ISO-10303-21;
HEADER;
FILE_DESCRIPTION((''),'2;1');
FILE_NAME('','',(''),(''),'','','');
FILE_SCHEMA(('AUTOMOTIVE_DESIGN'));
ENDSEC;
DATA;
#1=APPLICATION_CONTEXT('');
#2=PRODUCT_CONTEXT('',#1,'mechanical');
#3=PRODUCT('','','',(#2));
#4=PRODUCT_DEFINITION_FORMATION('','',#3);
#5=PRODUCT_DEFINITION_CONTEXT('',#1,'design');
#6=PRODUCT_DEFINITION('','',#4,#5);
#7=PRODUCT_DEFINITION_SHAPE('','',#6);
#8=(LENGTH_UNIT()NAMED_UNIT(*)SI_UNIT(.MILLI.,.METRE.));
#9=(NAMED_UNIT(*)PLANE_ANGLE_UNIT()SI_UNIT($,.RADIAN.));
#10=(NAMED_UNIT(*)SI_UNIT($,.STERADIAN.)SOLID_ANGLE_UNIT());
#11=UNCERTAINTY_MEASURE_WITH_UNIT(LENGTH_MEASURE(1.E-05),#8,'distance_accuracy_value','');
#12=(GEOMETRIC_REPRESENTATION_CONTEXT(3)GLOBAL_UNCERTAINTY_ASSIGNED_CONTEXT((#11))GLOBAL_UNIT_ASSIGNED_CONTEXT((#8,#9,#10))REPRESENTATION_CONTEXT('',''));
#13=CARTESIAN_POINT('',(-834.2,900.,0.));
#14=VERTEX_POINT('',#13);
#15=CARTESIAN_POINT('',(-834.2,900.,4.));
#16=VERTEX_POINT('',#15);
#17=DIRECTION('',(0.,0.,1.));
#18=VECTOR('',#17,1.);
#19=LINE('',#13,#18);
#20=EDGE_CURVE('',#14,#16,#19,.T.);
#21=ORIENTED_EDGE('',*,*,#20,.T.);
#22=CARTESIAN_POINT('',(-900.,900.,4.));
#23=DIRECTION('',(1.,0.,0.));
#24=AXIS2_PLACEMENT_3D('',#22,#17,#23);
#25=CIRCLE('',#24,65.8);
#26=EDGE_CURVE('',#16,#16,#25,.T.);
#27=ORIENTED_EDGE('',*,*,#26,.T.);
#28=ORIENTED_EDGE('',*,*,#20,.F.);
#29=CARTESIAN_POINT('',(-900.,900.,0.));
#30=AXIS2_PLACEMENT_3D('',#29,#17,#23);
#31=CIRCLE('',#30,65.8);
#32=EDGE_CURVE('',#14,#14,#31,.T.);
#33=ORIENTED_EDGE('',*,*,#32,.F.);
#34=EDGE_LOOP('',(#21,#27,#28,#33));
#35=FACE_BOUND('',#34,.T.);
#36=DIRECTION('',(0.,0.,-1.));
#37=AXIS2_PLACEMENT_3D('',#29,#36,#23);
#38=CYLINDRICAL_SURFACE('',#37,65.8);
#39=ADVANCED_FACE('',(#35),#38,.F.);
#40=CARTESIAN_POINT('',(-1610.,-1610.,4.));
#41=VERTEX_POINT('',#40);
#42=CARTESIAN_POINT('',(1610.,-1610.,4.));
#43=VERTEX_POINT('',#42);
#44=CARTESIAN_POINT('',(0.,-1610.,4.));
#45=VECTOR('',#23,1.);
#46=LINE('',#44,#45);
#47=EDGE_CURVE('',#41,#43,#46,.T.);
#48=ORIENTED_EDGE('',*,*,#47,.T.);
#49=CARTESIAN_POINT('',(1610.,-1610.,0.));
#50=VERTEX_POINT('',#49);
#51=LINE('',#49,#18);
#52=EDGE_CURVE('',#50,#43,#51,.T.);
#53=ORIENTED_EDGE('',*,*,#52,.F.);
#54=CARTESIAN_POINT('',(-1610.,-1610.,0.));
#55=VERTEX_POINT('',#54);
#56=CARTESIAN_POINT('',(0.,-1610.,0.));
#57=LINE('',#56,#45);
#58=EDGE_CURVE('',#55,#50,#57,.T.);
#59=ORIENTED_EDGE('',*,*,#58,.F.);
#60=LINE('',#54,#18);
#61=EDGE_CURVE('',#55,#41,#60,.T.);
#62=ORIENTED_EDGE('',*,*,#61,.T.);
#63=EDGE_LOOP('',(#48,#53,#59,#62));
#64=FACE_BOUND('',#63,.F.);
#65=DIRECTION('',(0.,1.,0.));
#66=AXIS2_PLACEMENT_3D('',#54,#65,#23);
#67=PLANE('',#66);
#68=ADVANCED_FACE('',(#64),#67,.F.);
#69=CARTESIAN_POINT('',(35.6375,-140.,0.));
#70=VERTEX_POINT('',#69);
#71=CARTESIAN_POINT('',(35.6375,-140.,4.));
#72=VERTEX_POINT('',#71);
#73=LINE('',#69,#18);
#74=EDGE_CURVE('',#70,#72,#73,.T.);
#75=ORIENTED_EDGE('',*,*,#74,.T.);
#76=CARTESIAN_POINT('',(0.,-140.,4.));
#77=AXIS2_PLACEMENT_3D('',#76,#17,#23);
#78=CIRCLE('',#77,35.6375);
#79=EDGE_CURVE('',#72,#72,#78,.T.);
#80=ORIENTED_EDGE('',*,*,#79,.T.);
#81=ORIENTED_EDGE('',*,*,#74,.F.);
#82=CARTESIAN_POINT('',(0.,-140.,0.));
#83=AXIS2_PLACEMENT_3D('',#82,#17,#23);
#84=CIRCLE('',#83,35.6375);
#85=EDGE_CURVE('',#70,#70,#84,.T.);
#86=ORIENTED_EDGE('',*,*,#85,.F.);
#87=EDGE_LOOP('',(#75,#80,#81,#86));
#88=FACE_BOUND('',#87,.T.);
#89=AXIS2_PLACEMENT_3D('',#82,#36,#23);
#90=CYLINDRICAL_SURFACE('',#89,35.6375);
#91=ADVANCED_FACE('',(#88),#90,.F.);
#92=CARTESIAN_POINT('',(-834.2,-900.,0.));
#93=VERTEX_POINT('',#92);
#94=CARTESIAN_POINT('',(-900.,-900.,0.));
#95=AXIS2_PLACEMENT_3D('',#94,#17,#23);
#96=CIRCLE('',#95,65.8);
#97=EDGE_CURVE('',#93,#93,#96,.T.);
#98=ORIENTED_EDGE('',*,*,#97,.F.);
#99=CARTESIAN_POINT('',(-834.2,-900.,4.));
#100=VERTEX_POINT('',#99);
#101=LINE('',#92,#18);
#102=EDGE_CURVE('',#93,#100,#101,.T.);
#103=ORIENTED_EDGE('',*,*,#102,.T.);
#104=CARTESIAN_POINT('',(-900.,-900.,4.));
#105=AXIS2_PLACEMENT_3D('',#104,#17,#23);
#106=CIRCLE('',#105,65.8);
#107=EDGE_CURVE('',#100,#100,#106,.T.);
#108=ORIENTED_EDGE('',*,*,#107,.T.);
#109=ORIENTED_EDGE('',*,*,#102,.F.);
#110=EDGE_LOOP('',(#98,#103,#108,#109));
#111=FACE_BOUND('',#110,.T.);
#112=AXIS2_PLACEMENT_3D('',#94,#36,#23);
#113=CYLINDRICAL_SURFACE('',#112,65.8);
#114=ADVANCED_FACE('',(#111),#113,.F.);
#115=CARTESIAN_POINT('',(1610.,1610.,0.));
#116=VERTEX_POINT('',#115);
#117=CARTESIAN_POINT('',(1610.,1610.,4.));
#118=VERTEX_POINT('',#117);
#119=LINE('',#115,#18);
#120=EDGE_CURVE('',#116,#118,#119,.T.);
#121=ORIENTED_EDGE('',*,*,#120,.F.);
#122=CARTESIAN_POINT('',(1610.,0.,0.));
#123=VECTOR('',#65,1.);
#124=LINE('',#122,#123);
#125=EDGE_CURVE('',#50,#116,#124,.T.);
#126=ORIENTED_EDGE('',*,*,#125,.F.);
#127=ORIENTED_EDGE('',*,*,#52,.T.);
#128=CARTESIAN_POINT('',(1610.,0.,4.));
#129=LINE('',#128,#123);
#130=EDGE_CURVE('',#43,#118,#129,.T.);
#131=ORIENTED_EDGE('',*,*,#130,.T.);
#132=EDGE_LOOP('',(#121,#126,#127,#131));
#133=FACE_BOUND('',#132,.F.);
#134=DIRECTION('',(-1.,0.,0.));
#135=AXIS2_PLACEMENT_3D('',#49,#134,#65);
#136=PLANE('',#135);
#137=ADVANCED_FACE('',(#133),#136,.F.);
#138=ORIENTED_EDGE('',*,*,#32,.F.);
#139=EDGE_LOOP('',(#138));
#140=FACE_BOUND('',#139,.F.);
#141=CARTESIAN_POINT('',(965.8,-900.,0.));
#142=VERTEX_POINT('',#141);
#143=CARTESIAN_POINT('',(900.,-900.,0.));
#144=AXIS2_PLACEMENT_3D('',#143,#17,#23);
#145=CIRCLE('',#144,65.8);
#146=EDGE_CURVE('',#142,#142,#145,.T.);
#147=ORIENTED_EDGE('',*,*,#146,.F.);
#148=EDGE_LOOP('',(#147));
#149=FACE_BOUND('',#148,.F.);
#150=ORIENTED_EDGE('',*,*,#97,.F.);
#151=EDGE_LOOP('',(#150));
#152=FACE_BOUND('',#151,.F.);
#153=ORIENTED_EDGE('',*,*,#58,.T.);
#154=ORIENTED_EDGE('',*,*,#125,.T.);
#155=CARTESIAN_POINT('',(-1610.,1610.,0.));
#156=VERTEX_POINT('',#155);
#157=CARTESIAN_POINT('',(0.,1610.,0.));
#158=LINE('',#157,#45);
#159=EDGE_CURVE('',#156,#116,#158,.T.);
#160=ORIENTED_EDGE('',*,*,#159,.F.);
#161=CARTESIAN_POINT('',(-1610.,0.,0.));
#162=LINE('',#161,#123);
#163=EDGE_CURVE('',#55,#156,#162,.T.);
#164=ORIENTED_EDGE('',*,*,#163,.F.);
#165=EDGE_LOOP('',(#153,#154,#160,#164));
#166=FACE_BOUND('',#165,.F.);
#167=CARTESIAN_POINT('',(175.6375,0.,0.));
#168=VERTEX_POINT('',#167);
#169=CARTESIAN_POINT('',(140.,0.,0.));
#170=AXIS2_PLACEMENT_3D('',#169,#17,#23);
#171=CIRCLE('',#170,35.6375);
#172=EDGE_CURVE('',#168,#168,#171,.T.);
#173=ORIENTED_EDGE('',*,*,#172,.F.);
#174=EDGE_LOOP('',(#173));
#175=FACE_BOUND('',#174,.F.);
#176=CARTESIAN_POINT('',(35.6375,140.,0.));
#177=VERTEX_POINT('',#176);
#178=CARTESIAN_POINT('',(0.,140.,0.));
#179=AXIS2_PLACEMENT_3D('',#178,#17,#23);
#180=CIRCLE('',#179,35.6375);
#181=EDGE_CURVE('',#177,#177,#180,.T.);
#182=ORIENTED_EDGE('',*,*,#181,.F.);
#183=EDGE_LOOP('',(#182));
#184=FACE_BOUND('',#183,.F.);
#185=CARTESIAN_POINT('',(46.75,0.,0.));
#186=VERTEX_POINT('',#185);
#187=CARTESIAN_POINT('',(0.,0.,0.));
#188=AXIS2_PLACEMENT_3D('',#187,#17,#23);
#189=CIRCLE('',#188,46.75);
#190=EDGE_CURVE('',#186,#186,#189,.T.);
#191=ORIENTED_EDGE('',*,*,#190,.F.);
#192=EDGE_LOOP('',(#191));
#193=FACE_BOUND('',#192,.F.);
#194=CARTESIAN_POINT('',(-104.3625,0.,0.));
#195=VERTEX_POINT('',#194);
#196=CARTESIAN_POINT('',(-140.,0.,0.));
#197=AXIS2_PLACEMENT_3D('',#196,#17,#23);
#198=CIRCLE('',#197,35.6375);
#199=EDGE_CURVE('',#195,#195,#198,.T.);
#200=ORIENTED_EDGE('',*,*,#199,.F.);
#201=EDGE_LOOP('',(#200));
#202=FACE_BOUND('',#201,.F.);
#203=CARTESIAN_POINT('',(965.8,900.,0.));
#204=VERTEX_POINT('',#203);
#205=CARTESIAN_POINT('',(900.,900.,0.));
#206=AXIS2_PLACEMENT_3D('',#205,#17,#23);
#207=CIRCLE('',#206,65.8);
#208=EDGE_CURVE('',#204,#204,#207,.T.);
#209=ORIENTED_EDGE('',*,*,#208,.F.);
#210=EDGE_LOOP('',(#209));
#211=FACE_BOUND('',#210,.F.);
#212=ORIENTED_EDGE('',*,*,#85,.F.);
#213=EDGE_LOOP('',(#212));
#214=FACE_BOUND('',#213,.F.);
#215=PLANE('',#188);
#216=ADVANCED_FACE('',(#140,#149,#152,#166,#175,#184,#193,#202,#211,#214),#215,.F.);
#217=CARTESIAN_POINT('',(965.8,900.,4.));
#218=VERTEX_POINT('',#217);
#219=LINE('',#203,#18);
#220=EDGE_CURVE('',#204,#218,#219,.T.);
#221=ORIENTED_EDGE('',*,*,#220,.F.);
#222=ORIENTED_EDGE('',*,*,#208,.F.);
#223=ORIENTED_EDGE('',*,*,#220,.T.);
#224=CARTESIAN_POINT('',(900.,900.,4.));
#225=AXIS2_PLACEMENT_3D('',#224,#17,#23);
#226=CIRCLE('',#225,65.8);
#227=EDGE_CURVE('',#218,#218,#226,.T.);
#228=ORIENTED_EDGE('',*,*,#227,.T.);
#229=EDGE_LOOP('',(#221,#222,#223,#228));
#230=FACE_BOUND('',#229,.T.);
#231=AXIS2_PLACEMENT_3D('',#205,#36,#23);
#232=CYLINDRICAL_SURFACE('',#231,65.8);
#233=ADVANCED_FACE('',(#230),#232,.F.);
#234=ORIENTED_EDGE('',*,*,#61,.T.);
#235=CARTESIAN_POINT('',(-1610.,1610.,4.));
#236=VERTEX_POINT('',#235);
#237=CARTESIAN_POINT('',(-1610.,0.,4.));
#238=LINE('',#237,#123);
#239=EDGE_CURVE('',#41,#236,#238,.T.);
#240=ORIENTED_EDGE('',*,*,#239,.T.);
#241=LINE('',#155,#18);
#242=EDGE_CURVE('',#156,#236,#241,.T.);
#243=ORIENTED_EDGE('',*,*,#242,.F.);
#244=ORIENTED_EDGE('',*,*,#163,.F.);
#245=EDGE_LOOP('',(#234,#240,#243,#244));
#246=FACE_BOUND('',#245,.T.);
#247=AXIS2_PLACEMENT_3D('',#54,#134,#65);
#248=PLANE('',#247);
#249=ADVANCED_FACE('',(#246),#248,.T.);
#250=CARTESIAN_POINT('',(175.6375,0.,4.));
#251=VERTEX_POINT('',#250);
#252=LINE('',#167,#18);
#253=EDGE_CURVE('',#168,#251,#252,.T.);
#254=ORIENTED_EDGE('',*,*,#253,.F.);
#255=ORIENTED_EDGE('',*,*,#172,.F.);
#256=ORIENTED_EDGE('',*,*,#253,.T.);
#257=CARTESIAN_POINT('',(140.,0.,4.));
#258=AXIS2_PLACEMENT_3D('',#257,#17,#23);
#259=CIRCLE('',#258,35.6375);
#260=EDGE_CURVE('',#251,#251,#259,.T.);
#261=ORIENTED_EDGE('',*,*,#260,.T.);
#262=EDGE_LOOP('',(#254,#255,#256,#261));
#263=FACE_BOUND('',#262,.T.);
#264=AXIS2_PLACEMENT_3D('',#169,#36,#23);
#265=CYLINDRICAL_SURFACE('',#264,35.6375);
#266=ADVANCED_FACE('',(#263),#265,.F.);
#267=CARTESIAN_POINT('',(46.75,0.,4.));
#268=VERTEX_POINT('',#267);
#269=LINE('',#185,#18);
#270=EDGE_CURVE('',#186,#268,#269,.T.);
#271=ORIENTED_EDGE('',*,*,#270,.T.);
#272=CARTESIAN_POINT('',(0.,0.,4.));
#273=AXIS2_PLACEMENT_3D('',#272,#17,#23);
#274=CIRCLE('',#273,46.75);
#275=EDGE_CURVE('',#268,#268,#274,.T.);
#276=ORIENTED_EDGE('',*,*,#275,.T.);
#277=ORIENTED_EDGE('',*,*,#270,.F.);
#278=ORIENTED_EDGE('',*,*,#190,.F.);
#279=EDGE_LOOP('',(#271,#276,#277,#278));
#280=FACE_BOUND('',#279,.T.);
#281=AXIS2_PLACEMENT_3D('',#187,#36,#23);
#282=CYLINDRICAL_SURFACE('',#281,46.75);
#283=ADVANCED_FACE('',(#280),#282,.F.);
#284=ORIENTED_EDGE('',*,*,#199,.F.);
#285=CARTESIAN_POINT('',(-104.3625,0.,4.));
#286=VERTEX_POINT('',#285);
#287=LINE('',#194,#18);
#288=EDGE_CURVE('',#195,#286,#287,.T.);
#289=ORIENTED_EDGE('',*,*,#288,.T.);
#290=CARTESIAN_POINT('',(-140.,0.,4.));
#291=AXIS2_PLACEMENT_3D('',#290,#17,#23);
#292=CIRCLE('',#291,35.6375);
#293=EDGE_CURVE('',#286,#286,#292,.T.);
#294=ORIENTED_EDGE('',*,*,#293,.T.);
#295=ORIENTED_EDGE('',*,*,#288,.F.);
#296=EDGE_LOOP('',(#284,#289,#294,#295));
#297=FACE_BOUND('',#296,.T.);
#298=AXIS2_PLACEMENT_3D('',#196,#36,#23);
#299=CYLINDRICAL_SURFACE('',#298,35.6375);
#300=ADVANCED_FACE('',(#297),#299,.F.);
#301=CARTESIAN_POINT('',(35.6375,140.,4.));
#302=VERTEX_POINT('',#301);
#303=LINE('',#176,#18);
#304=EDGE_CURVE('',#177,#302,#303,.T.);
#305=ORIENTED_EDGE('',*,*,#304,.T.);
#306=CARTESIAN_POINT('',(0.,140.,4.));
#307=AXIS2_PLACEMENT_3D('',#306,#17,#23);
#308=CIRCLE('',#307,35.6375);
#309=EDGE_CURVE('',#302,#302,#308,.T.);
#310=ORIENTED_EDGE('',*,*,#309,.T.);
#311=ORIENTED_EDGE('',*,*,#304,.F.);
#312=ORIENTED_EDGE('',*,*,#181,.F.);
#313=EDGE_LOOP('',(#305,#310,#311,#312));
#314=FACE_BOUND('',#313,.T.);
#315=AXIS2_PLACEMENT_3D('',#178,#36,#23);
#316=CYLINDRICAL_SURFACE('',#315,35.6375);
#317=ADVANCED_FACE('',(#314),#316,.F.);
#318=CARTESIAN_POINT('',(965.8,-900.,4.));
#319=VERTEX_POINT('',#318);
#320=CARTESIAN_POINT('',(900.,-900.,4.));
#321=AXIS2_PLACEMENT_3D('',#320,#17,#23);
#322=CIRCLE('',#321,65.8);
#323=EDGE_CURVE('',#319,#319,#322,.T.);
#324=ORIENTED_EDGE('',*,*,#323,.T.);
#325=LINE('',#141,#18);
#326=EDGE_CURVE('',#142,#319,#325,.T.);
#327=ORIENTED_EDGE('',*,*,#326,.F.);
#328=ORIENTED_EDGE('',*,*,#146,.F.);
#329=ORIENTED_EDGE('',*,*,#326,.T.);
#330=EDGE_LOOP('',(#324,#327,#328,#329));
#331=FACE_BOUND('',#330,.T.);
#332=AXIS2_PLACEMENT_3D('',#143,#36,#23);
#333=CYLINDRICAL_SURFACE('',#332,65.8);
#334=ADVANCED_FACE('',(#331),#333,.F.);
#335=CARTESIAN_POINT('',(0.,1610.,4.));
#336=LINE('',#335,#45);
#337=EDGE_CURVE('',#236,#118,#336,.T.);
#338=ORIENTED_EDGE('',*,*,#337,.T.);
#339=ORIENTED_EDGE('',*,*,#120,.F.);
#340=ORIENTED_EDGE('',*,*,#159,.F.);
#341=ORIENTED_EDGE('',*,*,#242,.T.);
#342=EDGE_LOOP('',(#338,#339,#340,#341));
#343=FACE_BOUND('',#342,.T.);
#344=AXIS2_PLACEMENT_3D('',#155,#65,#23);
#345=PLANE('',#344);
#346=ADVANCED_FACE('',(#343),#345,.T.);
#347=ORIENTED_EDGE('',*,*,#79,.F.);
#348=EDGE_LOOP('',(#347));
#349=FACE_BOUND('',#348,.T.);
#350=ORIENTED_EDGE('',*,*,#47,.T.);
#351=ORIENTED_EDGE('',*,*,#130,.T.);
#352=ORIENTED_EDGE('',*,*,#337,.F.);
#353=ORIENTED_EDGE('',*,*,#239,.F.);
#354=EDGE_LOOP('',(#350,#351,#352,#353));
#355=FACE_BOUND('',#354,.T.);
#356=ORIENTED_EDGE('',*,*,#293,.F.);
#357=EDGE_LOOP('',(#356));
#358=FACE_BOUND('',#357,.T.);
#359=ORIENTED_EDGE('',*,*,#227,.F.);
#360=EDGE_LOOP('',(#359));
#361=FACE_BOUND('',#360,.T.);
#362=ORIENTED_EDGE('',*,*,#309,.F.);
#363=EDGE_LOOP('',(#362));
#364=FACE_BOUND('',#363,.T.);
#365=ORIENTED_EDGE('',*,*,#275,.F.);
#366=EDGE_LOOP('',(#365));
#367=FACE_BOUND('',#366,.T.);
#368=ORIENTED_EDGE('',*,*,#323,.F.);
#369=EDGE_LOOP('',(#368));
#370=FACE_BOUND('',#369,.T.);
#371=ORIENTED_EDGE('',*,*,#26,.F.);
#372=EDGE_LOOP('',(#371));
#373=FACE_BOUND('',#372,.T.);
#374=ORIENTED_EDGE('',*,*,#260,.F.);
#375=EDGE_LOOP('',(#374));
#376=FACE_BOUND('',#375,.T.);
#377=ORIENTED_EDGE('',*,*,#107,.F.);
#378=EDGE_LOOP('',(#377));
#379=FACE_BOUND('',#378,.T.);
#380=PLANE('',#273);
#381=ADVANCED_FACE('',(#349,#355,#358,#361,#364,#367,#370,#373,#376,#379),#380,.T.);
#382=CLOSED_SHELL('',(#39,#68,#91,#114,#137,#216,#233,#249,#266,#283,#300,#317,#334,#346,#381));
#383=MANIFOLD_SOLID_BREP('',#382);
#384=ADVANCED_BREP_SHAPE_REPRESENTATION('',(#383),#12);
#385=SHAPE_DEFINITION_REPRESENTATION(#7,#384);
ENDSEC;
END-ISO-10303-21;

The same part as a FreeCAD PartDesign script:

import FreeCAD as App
import Part
import Sketcher

V = App.Vector


def add_polygon(sketch, points):
    """Adds a closed chain of lines whose ends are joined by coincident constraints."""
    first, n = sketch.GeometryCount, len(points)
    for a, b in zip(points, points[1:] + points[:1]):
        sketch.addGeometry(Part.LineSegment(App.Vector(*a, 0), App.Vector(*b, 0)), False)
    for i in range(n):
        sketch.addConstraint(Sketcher.Constraint("Coincident", first + i, 2, first + (i + 1) % n, 1))

doc = App.newDocument("Part")
body = doc.addObject("PartDesign::Body", "Body")

sketch1 = body.newObject("Sketcher::SketchObject", "Sketch")
sketch1.AttachmentSupport = (doc.getObject("XY_Plane"), [""])
sketch1.MapMode = "FlatFace"
add_polygon(sketch1, [(-1610, 1610), (-1610, -1610), (1610, -1610), (1610, 1610)])
sketch1.addGeometry(Part.Circle(V(-900, -900, 0), V(0, 0, 1), 66), False)
sketch1.addGeometry(Part.Circle(V(900, -900, 0), V(0, 0, 1), 66), False)
sketch1.addGeometry(Part.Circle(V(0, -140, 0), V(0, 0, 1), 36), False)
sketch1.addGeometry(Part.Circle(V(-140, 0, 0), V(0, 0, 1), 36), False)
sketch1.addGeometry(Part.Circle(V(-900, 900, 0), V(0, 0, 1), 66), False)
sketch1.addGeometry(Part.Circle(V(0, 0, 0), V(0, 0, 1), 47), False)
sketch1.addGeometry(Part.Circle(V(140, 0, 0), V(0, 0, 1), 36), False)
sketch1.addGeometry(Part.Circle(V(0, 140, 0), V(0, 0, 1), 36), False)
sketch1.addGeometry(Part.Circle(V(900, 900, 0), V(0, 0, 1), 66), False)
sketch1.addConstraint(Sketcher.Constraint("Vertical", 0))
sketch1.addConstraint(Sketcher.Constraint("Horizontal", 1))
sketch1.addConstraint(Sketcher.Constraint("Vertical", 2))
sketch1.addConstraint(Sketcher.Constraint("Horizontal", 3))
sketch1.addConstraint(Sketcher.Constraint("Coincident", 9, 3, -1, 1))
sketch1.addConstraint(Sketcher.Constraint("Equal", 4, 5))
sketch1.addConstraint(Sketcher.Constraint("Equal", 6, 7))
sketch1.addConstraint(Sketcher.Constraint("Equal", 5, 8))
sketch1.addConstraint(Sketcher.Constraint("Equal", 7, 10))
sketch1.addConstraint(Sketcher.Constraint("Equal", 10, 11))
sketch1.addConstraint(Sketcher.Constraint("Equal", 8, 12))
sketch1.addConstraint(Sketcher.Constraint("Symmetric", 5, 3, 8, 3, -1, 1))
sketch1.addConstraint(Sketcher.Constraint("Symmetric", 7, 3, 10, 3, -1, 1))
sketch1.addConstraint(Sketcher.Constraint("Symmetric", 6, 3, 11, 3, -1, 1))
sketch1.addConstraint(Sketcher.Constraint("Symmetric", 4, 3, 12, 3, -1, 1))
sketch1.addConstraint(Sketcher.Constraint("Symmetric", 0, 2, 2, 2, -1, 1))
sketch1.addConstraint(Sketcher.Constraint("Symmetric", 4, 3, 5, 3, -2))
sketch1.addConstraint(Sketcher.Constraint("PointOnObject", 6, 3, -2))
sketch1.addConstraint(Sketcher.Constraint("PointOnObject", 7, 3, -1))
sketch1.addConstraint(Sketcher.Constraint("Equal", 3, 0))
sketch1.addConstraint(Sketcher.Constraint("Diameter", 4, 131.6))
sketch1.addConstraint(Sketcher.Constraint("Diameter", 9, 93.5))
sketch1.addConstraint(Sketcher.Constraint("DistanceX", 1, 1, 1, 2, 3220.0))
sketch1.addConstraint(Sketcher.Constraint("Diameter", 6, 71.275))
sketch1.addConstraint(Sketcher.Constraint("DistanceX", 4, 3, -1, 1, 900.0))
sketch1.addConstraint(Sketcher.Constraint("DistanceY", 4, 3, -1, 1, 900.0))
sketch1.addConstraint(Sketcher.Constraint("DistanceY", 6, 3, -1, 1, 140.0))
sketch1.addConstraint(Sketcher.Constraint("DistanceX", 7, 3, -1, 1, 140.0))
pad1 = body.newObject("PartDesign::Pad", "Pad")
pad1.Profile = sketch1
pad1.Length = 4

doc.recompute()
